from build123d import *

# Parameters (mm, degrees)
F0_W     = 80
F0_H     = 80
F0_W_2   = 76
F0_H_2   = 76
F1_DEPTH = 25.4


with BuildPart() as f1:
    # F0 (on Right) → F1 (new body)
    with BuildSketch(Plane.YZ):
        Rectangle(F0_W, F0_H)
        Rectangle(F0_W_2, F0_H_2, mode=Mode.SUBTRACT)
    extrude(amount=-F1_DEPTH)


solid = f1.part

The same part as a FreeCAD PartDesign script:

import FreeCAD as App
import Part
import Sketcher

V = App.Vector
Q = App.Units.Quantity

doc = App.newDocument("Part")
body = doc.addObject("PartDesign::Body", "Body")

# Sketch on YZ plane
sketch1 = body.newObject("Sketcher::SketchObject", "Sketch")
sketch1.AttachmentSupport = (doc.getObject("YZ_Plane"), [""])
sketch1.MapMode = "FlatFace"
sketch1.addGeometry(Part.LineSegment(V(-40, 40, 0), V(-40, -40, 0)), False)
sketch1.addGeometry(Part.LineSegment(V(-40, -40, 0), V(40, -40, 0)), False)
sketch1.addGeometry(Part.LineSegment(V(40, -40, 0), V(40, 40, 0)), False)
sketch1.addGeometry(Part.LineSegment(V(40, 40, 0), V(-40, 40, 0)), False)
sketch1.addGeometry(Part.LineSegment(V(38, -38, 0), V(-38, -38, 0)), False)
sketch1.addGeometry(Part.LineSegment(V(-38, -38, 0), V(-38, 38, 0)), False)
sketch1.addGeometry(Part.LineSegment(V(-38, 38, 0), V(38, 38, 0)), False)
sketch1.addGeometry(Part.LineSegment(V(38, 38, 0), V(38, -38, 0)), False)
sketch1.addConstraint(Sketcher.Constraint("Coincident", 0, 2, 1, 1))
sketch1.addConstraint(Sketcher.Constraint("Coincident", 1, 2, 2, 1))
sketch1.addConstraint(Sketcher.Constraint("Coincident", 2, 2, 3, 1))
sketch1.addConstraint(Sketcher.Constraint("Coincident", 3, 2, 0, 1))
sketch1.addConstraint(Sketcher.Constraint("Coincident", 4, 2, 5, 1))
sketch1.addConstraint(Sketcher.Constraint("Coincident", 5, 2, 6, 1))
sketch1.addConstraint(Sketcher.Constraint("Coincident", 6, 2, 7, 1))
sketch1.addConstraint(Sketcher.Constraint("Coincident", 7, 2, 4, 1))
sketch1.addConstraint(Sketcher.Constraint("Vertical", 0))
sketch1.addConstraint(Sketcher.Constraint("Horizontal", 1))
sketch1.addConstraint(Sketcher.Constraint("Vertical", 2))
sketch1.addConstraint(Sketcher.Constraint("Horizontal", 3))
sketch1.addConstraint(Sketcher.Constraint("Horizontal", 4))
sketch1.addConstraint(Sketcher.Constraint("Vertical", 5))
sketch1.addConstraint(Sketcher.Constraint("Horizontal", 6))
sketch1.addConstraint(Sketcher.Constraint("Vertical", 7))
sketch1.addConstraint(Sketcher.Constraint("Symmetric", 0, 2, 2, 2, -1, 1))
sketch1.addConstraint(Sketcher.Constraint("Symmetric", 4, 2, 6, 2, -1, 1))
sketch1.addConstraint(Sketcher.Constraint("Equal", 3, 0))
sketch1.addConstraint(Sketcher.Constraint("Equal", 6, 5))
sketch1.addConstraint(Sketcher.Constraint("DistanceX", 1, 1, 1, 2, Q("80 mm")))
sketch1.addConstraint(Sketcher.Constraint("DistanceX", 4, 2, 4, 1, Q("76 mm")))
pad1 = body.newObject("PartDesign::Pad", "Pad")
pad1.Profile = sketch1
pad1.Length = 25.4
pad1.Reversed = True

doc.recompute()
